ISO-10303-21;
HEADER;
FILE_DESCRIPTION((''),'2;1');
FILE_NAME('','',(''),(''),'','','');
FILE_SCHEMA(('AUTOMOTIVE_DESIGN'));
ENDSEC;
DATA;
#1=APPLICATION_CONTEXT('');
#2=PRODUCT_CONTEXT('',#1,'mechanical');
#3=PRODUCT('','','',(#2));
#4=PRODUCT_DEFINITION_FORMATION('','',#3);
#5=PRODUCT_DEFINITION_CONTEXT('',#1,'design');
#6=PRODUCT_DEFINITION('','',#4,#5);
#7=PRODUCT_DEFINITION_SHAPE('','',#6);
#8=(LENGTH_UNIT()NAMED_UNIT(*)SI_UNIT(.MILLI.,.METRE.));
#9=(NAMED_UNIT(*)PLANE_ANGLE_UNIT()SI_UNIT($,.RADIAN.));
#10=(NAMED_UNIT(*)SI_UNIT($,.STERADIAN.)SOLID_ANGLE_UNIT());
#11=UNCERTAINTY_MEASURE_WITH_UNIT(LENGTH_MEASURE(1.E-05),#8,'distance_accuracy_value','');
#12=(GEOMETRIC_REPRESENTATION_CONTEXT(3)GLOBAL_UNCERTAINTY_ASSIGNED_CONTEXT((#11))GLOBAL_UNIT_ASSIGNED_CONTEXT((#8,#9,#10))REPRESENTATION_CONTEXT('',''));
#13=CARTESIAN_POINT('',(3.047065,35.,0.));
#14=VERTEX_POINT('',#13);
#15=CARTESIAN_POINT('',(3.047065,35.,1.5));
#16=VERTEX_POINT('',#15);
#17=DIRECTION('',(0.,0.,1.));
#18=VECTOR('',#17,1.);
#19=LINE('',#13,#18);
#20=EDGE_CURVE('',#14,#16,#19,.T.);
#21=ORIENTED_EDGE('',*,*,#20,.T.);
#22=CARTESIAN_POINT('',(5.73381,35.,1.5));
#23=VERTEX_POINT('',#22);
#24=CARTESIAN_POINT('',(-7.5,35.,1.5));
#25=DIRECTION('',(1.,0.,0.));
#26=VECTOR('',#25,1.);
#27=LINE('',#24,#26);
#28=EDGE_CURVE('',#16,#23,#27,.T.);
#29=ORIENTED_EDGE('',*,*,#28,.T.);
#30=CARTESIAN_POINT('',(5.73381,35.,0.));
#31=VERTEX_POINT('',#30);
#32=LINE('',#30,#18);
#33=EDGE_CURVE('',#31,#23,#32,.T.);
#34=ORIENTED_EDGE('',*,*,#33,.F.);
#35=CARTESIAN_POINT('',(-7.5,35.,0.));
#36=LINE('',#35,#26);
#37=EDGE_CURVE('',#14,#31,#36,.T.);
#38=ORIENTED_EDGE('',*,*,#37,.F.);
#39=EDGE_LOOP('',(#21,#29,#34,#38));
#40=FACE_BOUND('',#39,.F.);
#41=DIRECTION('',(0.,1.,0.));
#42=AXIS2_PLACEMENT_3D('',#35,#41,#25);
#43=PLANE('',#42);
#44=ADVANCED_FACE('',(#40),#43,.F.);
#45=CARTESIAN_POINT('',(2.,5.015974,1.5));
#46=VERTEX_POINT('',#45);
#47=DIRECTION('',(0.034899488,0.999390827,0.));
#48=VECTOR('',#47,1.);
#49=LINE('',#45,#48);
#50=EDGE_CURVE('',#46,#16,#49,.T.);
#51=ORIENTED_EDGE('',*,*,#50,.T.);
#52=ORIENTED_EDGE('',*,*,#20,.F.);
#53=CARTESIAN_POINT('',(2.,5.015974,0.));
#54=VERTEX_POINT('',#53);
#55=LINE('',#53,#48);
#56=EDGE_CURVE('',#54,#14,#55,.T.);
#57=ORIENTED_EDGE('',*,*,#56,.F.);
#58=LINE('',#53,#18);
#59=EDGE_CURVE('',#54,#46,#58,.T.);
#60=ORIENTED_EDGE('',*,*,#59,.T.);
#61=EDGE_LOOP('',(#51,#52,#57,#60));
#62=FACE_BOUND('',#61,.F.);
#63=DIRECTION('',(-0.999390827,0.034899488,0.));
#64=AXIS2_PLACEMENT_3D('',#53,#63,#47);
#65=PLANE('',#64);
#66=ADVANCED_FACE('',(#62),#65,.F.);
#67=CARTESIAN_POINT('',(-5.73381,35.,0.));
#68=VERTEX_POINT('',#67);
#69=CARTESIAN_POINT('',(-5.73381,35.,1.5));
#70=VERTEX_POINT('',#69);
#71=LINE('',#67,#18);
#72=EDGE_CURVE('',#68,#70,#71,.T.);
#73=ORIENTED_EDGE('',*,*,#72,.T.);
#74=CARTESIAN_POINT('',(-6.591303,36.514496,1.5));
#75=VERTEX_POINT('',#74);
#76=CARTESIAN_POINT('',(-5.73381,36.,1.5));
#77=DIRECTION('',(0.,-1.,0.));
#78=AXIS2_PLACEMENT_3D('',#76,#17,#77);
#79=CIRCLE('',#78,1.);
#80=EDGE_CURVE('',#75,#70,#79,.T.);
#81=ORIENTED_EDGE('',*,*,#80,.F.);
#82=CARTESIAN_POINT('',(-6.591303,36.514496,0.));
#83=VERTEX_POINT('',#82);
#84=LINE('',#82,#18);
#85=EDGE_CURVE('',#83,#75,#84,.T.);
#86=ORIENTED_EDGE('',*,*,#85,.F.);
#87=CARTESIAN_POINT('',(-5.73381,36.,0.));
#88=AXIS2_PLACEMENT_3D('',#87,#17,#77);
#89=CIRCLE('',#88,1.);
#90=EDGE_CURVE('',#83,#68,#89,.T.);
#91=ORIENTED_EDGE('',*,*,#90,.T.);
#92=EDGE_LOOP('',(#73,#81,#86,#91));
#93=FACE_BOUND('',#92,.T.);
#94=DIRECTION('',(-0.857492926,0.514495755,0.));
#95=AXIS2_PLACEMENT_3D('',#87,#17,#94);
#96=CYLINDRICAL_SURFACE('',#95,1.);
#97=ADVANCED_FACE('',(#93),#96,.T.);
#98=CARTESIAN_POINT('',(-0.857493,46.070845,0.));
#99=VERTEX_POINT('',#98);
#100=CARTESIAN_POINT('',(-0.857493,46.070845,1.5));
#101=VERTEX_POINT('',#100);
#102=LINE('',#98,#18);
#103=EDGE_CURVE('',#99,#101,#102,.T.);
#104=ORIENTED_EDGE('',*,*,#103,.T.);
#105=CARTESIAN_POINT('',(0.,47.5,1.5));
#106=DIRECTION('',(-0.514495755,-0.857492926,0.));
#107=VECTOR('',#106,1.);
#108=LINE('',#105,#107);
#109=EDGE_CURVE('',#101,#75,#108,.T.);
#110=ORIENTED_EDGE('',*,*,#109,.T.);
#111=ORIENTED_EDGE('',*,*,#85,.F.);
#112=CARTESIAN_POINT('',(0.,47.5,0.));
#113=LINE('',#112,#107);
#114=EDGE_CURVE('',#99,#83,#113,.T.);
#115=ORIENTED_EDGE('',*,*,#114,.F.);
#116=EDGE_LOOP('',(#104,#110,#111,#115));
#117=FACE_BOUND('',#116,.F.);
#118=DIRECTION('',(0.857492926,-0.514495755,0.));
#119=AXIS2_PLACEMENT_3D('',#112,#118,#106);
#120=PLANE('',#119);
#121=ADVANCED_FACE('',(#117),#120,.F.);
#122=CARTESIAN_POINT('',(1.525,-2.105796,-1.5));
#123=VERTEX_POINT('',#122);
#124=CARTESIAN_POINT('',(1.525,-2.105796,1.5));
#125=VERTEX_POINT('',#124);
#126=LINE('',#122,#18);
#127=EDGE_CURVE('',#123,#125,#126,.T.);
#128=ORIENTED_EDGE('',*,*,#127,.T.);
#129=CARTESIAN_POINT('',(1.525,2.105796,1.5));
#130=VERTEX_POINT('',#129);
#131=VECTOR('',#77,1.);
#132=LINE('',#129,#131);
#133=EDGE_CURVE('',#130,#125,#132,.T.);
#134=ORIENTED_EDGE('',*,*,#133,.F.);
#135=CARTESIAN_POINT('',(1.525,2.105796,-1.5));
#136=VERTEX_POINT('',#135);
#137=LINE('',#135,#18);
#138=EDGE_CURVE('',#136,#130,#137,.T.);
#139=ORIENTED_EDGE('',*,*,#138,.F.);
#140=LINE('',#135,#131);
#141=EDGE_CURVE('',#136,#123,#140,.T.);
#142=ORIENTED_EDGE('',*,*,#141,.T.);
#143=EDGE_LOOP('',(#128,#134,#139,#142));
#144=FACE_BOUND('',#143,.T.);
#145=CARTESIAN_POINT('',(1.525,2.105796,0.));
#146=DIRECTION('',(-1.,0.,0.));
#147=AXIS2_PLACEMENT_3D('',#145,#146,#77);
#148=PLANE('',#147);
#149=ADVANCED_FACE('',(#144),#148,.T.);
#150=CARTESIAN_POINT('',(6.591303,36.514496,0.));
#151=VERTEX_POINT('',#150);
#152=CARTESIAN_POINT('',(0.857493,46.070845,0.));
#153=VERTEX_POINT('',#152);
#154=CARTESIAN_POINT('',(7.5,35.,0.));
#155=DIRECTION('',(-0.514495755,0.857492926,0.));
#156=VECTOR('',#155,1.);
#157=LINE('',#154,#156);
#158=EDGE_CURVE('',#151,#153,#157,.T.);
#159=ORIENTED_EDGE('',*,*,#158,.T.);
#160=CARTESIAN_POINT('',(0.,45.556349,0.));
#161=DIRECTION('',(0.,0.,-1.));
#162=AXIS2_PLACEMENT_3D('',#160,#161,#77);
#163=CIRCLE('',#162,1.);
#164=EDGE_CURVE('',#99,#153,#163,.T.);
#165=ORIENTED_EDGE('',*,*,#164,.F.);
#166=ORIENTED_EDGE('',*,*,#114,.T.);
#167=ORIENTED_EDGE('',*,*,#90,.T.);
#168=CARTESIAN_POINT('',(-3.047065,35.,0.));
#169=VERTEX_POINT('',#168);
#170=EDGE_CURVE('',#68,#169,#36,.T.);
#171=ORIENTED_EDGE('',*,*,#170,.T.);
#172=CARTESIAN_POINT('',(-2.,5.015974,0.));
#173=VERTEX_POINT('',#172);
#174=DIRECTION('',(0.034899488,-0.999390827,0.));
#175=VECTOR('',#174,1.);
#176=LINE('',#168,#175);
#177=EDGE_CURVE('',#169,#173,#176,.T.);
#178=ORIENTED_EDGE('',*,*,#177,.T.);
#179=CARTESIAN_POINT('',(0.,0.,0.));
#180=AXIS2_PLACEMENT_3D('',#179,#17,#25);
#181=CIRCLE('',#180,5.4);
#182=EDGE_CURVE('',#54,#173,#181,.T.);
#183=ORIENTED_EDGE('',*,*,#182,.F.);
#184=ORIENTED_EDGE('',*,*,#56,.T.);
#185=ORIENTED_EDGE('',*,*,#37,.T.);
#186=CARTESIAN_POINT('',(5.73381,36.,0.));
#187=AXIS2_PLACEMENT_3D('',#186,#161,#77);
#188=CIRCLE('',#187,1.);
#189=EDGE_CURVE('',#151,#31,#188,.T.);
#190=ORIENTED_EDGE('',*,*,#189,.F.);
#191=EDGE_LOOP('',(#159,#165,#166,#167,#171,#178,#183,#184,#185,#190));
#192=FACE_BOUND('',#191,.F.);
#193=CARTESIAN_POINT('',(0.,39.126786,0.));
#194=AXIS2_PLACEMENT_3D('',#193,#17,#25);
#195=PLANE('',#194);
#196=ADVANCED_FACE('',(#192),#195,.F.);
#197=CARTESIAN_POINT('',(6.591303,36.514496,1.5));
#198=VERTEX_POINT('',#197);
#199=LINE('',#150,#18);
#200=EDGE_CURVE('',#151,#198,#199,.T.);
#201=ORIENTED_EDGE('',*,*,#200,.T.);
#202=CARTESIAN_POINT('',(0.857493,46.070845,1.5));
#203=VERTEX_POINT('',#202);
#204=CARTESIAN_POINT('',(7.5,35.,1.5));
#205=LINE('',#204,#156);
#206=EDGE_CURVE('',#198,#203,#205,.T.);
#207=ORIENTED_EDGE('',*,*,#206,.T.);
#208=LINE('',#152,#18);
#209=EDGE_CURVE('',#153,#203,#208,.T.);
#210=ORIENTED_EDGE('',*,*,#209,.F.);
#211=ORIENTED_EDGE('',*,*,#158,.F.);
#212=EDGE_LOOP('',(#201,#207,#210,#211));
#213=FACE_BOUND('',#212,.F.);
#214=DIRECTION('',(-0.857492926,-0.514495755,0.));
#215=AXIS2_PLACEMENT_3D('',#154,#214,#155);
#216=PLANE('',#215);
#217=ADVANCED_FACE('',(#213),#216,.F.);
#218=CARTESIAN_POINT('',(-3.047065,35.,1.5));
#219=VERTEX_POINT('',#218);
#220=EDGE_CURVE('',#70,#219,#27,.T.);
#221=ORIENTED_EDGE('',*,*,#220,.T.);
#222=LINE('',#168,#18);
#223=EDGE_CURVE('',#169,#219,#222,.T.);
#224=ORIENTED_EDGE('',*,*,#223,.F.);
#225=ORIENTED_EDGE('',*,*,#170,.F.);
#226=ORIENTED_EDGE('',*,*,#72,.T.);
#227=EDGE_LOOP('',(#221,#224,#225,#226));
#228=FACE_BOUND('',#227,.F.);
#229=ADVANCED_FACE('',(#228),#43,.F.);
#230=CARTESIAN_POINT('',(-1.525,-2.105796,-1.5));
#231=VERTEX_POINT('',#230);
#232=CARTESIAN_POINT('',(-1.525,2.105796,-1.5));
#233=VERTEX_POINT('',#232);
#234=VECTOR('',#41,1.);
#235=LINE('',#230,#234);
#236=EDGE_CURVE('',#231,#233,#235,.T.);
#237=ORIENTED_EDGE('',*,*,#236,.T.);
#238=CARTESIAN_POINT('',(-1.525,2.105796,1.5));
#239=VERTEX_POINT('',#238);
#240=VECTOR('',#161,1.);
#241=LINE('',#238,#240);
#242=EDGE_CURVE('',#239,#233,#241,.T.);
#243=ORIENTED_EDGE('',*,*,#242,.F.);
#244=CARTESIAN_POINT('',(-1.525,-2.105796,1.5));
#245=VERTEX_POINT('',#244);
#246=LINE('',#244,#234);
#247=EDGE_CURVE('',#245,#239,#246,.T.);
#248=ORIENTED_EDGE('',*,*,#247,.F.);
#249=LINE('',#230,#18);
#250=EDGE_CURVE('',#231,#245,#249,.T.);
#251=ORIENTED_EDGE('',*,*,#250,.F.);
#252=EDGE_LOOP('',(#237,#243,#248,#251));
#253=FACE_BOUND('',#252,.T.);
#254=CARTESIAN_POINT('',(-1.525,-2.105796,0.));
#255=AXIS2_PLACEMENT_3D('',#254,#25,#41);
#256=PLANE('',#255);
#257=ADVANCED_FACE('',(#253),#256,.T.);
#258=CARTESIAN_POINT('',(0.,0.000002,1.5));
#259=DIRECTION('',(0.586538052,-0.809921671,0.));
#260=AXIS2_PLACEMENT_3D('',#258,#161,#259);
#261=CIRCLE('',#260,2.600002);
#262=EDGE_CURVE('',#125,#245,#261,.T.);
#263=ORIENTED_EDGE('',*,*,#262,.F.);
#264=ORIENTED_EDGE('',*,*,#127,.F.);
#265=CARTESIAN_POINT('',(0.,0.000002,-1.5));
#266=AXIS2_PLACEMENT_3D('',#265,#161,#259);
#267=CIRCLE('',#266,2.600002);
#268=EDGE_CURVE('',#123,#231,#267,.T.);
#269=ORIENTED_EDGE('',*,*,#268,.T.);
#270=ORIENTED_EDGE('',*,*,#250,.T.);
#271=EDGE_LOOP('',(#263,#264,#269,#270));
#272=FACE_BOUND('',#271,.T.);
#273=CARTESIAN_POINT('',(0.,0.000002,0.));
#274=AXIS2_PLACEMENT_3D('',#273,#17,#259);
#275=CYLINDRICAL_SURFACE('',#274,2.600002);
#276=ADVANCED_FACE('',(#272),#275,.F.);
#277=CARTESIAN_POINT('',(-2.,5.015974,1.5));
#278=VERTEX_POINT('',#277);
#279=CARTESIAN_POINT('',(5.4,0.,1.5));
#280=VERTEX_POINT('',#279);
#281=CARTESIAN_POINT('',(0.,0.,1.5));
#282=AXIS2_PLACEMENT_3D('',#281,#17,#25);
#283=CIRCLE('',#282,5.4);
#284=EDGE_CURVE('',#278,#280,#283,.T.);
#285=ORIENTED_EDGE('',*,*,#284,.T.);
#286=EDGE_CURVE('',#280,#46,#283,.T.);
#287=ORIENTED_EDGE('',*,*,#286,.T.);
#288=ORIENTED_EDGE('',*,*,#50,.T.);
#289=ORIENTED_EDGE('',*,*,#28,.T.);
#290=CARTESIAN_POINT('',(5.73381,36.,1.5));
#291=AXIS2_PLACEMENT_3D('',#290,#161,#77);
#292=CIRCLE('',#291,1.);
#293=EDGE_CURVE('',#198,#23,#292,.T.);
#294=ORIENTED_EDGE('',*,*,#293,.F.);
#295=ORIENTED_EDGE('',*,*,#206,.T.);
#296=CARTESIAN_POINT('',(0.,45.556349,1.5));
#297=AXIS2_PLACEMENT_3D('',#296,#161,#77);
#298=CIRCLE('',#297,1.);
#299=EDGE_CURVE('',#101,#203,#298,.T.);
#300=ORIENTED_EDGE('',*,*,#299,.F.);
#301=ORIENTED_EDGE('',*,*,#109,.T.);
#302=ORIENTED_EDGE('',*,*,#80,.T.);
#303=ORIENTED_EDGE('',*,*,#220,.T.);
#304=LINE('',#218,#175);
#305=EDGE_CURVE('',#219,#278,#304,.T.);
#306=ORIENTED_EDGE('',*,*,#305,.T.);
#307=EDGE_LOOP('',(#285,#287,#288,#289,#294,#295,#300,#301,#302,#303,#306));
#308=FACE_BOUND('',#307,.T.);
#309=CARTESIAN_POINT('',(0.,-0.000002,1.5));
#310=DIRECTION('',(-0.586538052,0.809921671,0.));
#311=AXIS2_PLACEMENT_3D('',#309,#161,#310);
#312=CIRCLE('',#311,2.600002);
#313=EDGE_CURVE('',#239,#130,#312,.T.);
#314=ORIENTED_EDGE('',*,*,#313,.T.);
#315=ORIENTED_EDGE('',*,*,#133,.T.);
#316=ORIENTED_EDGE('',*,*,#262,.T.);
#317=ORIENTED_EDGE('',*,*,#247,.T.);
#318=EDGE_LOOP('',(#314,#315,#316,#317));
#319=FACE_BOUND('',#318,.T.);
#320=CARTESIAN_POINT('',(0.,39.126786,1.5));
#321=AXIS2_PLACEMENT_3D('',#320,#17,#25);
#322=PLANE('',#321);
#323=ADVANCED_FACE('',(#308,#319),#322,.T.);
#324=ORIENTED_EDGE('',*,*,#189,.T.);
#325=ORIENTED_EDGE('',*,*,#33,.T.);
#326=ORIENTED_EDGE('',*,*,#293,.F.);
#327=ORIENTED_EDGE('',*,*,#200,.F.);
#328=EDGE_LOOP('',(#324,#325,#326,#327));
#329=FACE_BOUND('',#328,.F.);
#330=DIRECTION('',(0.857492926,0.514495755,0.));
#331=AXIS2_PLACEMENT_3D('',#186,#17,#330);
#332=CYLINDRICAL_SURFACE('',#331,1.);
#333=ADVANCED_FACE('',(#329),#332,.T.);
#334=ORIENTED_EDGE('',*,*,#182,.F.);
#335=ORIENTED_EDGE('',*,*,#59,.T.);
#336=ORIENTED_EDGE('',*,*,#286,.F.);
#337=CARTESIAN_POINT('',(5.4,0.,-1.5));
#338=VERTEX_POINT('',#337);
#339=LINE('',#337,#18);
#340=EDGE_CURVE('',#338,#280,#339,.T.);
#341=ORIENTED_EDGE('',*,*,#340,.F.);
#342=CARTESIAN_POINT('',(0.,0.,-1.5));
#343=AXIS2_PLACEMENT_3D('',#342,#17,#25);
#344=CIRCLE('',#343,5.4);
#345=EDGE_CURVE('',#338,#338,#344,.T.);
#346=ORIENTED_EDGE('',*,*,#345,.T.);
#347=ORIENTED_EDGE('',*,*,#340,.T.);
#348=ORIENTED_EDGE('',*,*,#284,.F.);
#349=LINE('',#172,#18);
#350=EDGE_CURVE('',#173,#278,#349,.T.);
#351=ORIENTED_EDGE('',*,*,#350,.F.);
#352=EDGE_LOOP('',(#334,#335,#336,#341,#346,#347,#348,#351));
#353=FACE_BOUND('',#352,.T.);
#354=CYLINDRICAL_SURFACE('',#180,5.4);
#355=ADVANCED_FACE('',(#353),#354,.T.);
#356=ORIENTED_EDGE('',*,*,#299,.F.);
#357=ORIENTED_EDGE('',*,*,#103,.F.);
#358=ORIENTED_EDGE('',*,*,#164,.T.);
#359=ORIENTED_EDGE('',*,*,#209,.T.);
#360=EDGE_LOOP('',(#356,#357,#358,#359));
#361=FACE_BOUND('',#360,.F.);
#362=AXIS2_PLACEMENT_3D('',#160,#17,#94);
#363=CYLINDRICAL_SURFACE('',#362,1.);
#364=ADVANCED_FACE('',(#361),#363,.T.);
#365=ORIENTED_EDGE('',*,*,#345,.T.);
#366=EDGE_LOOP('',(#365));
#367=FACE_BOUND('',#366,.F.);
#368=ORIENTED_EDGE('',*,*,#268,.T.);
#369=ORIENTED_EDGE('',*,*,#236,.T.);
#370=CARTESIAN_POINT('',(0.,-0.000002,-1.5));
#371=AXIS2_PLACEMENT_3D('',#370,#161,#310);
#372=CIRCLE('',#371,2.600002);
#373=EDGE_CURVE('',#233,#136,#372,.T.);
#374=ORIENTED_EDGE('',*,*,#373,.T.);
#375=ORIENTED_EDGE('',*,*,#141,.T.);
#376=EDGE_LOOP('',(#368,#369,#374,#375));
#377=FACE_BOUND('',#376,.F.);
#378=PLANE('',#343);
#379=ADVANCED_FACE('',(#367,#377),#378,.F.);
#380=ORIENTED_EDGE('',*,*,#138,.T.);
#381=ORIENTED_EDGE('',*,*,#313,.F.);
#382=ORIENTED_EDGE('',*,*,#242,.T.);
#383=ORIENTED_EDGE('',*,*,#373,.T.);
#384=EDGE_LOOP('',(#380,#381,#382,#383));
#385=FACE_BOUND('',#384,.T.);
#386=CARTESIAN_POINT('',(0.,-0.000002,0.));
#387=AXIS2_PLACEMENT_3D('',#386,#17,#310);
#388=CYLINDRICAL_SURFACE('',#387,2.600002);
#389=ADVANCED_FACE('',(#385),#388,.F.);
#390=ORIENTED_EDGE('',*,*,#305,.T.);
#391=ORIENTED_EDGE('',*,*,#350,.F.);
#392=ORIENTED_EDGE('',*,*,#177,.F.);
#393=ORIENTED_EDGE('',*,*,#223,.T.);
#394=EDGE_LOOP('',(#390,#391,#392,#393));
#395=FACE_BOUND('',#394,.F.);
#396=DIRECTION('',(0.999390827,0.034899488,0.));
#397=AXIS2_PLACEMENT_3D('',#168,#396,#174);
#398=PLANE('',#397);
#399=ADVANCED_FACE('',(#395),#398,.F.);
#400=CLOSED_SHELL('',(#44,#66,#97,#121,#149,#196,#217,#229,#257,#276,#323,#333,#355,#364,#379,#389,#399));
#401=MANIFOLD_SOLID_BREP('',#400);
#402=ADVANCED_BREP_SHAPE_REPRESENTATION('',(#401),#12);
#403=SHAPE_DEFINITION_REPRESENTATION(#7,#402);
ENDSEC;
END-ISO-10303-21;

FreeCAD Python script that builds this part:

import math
import FreeCAD as App
import Part
import Sketcher

V = App.Vector
Q = App.Units.Quantity


def edges_at(feature, points):
    """Names of the edges that pass closest to the given points."""
    edges = feature.Shape.Edges
    near = lambda p: min(range(len(edges)), key=lambda i: edges[i].distToShape(Part.Vertex(*p))[0])
    return sorted({f"Edge{near(p) + 1}" for p in points})

doc = App.newDocument("Part")
body = doc.addObject("PartDesign::Body", "Body")

# Sketch on XY plane
sketch1 = body.newObject("Sketcher::SketchObject", "Sketch")
sketch1.AttachmentSupport = (doc.getObject("XY_Plane"), [""])
sketch1.MapMode = "FlatFace"
sketch1.addGeometry(Part.Circle(V(0, 0, 0), V(0, 0, 1), 5.4), False)
sketch1.addGeometry(Part.ArcOfCircle(Part.Circle(V(0, 0, 0), V(0, 0, 1), 2.6), math.radians(54), math.radians(126)), False)
sketch1.addGeometry(Part.LineSegment(V(1.5, 2.1, 0), V(1.5, -2.1, 0)), False)
sketch1.addGeometry(Part.ArcOfCircle(Part.Circle(V(0, 0, 0), V(0, 0, 1), 2.6), math.radians(-126), math.radians(-54)), False)
sketch1.addGeometry(Part.LineSegment(V(-1.5, -2.1, 0), V(-1.5, 2.1, 0)), False)
sketch1.addConstraint(Sketcher.Constraint("Coincident", 1, 1, 2, 1))
sketch1.addConstraint(Sketcher.Constraint("Coincident", 2, 2, 3, 2))
sketch1.addConstraint(Sketcher.Constraint("Coincident", 3, 1, 4, 1))
sketch1.addConstraint(Sketcher.Constraint("Coincident", 4, 2, 1, 2))
sketch1.addConstraint(Sketcher.Constraint("Vertical", 2))
sketch1.addConstraint(Sketcher.Constraint("Vertical", 4))
sketch1.addConstraint(Sketcher.Constraint("Coincident", 0, 3, -1, 1))
sketch1.addConstraint(Sketcher.Constraint("Coincident", 1, 3, -1, 1))
sketch1.addConstraint(Sketcher.Constraint("Coincident", 3, 3, -1, 1))
sketch1.addConstraint(Sketcher.Constraint("Equal", 1, 3))
sketch1.addConstraint(Sketcher.Constraint("Horizontal", 2, 2, 3, 1))
sketch1.addConstraint(Sketcher.Constraint("Diameter", 0, Q("10.8 mm")))
sketch1.addConstraint(Sketcher.Constraint("Radius", 1, Q("2.600002 mm")))
sketch1.addConstraint(Sketcher.Constraint("DistanceX", 3, 1, 2, 2, Q("3.05 mm")))
pad1 = body.newObject("PartDesign::Pad", "Pad")
pad1.Profile = sketch1
pad1.Length = 3
pad1.Midplane = True

# Sketch on XY plane
sketch2 = body.newObject("Sketcher::SketchObject", "Sketch001")
sketch2.AttachmentSupport = (doc.getObject("XY_Plane"), [""])
sketch2.MapMode = "FlatFace"
sketch2.addGeometry(Part.LineSegment(V(-2, 5, 0), V(2, 5, 0)), False)
sketch2.addGeometry(Part.LineSegment(V(2, 5, 0), V(3, 35, 0)), False)
sketch2.addGeometry(Part.LineSegment(V(3, 35, 0), V(-3, 35, 0)), False)
sketch2.addGeometry(Part.LineSegment(V(-3, 35, 0), V(-2, 5, 0)), False)
sketch2.addConstraint(Sketcher.Constraint("Coincident", 0, 2, 1, 1))
sketch2.addConstraint(Sketcher.Constraint("Coincident", 1, 2, 2, 1))
sketch2.addConstraint(Sketcher.Constraint("Coincident", 2, 2, 3, 1))
sketch2.addConstraint(Sketcher.Constraint("Coincident", 3, 2, 0, 1))
sketch2.addConstraint(Sketcher.Constraint("Horizontal", 0))
sketch2.addConstraint(Sketcher.Constraint("Horizontal", 2))
sketch2.addConstraint(Sketcher.Constraint("Equal", 1, 3))
sketch2.addConstraint(Sketcher.Constraint("DistanceX", 0, 1, 0, 2, Q("4 mm")))
sketch2.addConstraint(Sketcher.Constraint("Angle", 1, Q("88 deg")))
sketch2.addConstraint(Sketcher.Constraint("DistanceX", -1, 1, 0, 2, Q("2 mm")))
sketch2.addConstraint(Sketcher.Constraint("DistanceY", -1, 1, 1, 2, Q("35 mm")))
sketch2.addConstraint(Sketcher.Constraint("DistanceX", 2, 2, 2, 1, Q("6.09413 mm")))
pad2 = body.newObject("PartDesign::Pad", "Pad001")
pad2.Profile = sketch2
pad2.Length = 1.5

# Sketch on XY plane
sketch3 = body.newObject("Sketcher::SketchObject", "Sketch002")
sketch3.AttachmentSupport = (doc.getObject("XY_Plane"), [""])
sketch3.MapMode = "FlatFace"
sketch3.addGeometry(Part.LineSegment(V(0, 48, 0), V(-8, 35, 0)), False)
sketch3.addGeometry(Part.LineSegment(V(-8, 35, 0), V(8, 35, 0)), False)
sketch3.addGeometry(Part.LineSegment(V(8, 35, 0), V(0, 48, 0)), False)
sketch3.addConstraint(Sketcher.Constraint("Coincident", 0, 2, 1, 1))
sketch3.addConstraint(Sketcher.Constraint("Coincident", 1, 2, 2, 1))
sketch3.addConstraint(Sketcher.Constraint("Coincident", 2, 2, 0, 1))
sketch3.addConstraint(Sketcher.Constraint("Horizontal", 1))
sketch3.addConstraint(Sketcher.Constraint("PointOnObject", 2, 2, -2))
sketch3.addConstraint(Sketcher.Constraint("Equal", 0, 2))
sketch3.addConstraint(Sketcher.Constraint("DistanceX", 1, 1, 1, 2, Q("15 mm")))
sketch3.addConstraint(Sketcher.Constraint("DistanceY", -1, 1, 0, 2, Q("35 mm")))
sketch3.addConstraint(Sketcher.Constraint("DistanceY", -1, 1, 2, 2, Q("47.5 mm")))
pad3 = body.newObject("PartDesign::Pad", "Pad002")
pad3.Profile = sketch3
pad3.Length = 1.5
doc.recompute()

fillet = body.newObject("PartDesign::Fillet", "Fillet")
fillet.Base = (pad3, edges_at(pad3, [(0, 47.5, 0.75), (-7.5, 35, 0.75), (7.5, 35, 0.75)]))
fillet.Radius = 1

doc.recompute()
